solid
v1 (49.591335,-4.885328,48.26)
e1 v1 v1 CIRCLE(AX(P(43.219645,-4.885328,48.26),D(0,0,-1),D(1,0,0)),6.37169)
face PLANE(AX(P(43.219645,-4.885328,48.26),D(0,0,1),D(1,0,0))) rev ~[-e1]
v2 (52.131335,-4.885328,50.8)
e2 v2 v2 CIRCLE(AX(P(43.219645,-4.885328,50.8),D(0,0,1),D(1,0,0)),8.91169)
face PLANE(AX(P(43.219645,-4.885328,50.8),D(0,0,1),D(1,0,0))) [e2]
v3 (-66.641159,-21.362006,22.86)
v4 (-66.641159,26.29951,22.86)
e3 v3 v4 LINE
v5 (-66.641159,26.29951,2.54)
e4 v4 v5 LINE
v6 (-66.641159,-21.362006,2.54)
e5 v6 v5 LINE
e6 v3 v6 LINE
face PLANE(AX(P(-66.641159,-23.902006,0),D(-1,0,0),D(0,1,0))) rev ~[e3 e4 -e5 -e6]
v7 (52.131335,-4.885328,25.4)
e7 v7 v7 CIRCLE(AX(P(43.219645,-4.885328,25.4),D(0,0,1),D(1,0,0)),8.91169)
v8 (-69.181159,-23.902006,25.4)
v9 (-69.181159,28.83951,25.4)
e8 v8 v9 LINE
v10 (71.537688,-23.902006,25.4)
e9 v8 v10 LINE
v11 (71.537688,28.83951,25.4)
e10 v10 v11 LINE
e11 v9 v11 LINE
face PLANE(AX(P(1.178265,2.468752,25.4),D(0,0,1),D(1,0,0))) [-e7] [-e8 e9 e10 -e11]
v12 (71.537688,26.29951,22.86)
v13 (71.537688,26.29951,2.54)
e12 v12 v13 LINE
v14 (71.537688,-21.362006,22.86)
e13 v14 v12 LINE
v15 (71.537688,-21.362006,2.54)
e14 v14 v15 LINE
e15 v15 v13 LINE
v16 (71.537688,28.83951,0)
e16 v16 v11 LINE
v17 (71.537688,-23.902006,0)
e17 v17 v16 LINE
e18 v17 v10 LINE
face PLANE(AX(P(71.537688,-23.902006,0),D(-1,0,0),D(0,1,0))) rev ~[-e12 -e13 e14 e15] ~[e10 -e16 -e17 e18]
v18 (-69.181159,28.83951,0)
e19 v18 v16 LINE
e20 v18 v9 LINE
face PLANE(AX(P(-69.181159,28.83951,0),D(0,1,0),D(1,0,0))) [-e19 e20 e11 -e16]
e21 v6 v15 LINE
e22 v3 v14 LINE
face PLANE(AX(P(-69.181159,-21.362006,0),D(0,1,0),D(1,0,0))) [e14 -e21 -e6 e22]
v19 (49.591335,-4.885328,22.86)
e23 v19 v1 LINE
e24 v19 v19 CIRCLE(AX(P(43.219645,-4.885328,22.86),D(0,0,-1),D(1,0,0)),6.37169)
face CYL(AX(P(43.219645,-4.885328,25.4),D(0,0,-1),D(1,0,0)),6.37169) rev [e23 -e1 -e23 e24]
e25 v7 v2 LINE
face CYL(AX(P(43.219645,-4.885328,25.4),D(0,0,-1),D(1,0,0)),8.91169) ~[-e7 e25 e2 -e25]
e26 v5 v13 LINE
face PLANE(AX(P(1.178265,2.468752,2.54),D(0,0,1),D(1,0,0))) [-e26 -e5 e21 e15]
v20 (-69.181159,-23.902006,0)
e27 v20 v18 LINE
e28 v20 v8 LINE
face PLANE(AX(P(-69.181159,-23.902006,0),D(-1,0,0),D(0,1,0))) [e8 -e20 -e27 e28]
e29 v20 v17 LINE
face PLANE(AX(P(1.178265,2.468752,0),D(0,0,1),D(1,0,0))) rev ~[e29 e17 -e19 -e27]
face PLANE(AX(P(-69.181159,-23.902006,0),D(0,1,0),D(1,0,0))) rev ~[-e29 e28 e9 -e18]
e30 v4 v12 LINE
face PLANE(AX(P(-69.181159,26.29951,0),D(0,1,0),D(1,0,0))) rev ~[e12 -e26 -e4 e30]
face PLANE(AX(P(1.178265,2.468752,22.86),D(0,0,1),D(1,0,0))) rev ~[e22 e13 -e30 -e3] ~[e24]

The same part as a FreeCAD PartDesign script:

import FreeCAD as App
import Part
import Sketcher

V = App.Vector
Q = App.Units.Quantity


def faces_at(feature, points):
    """Names of the faces that lie closest to the given points."""
    faces = feature.Shape.Faces
    near = lambda p: min(range(len(faces)), key=lambda i: faces[i].distToShape(Part.Vertex(*p))[0])
    return sorted({f"Face{near(p) + 1}" for p in points})


def add_polygon(sketch, points):
    """Adds a closed chain of lines whose ends are joined by coincident constraints."""
    first, n = sketch.GeometryCount, len(points)
    for a, b in zip(points, points[1:] + points[:1]):
        sketch.addGeometry(Part.LineSegment(App.Vector(*a, 0), App.Vector(*b, 0)), False)
    for i in range(n):
        sketch.addConstraint(Sketcher.Constraint("Coincident", first + i, 2, first + (i + 1) % n, 1))

doc = App.newDocument("Part")
body = doc.addObject("PartDesign::Body", "Body")

# Sketch on XY plane
sketch1 = body.newObject("Sketcher::SketchObject", "Sketch")
sketch1.AttachmentSupport = (doc.getObject("XY_Plane"), [""])
sketch1.MapMode = "FlatFace"
add_polygon(sketch1, [(-69, 29), (-69, -24), (72, -24), (72, 29)])  # lines 0-3
sketch1.addConstraint([
    Sketcher.Constraint("Vertical", 0),
    Sketcher.Constraint("Horizontal", 1),
    Sketcher.Constraint("Vertical", 2),
    Sketcher.Constraint("Horizontal", 3),
    Sketcher.Constraint("DistanceX", 1, 1, 1, 2, Q("140.718848 mm")),
    Sketcher.Constraint("DistanceY", 0, 2, 0, 1, Q("52.741516 mm")),
    Sketcher.Constraint("DistanceX", 0, 2, -1, 1, Q("69.181159 mm")),
    Sketcher.Constraint("DistanceY", -1, 1, 2, 2, Q("28.83951 mm")),
])
pad1 = body.newObject("PartDesign::Pad", "Pad")
pad1.Profile = sketch1
pad1.Length = Q("1 in")

# Sketch on XY plane
sketch2 = body.newObject("Sketcher::SketchObject", "Sketch001")
sketch2.AttachmentSupport = (doc.getObject("XY_Plane"), [""])
sketch2.MapMode = "FlatFace"
sketch2.AttachmentOffset = App.Placement(V(0, 0, 1 * 25.4), App.Rotation())
sketch2.addGeometry(Part.Circle(V(43, -5, 0), V(0, 0, 1), 9), False)
sketch2.addConstraint([
    Sketcher.Constraint("Diameter", 0, Q("17.82338 mm")),
    Sketcher.Constraint("DistanceX", -1, 1, 0, 3, Q("43.219645 mm")),
    Sketcher.Constraint("DistanceY", 0, 3, -1, 1, Q("4.885328 mm")),
])
pad2 = body.newObject("PartDesign::Pad", "Pad001")
pad2.Profile = sketch2
pad2.Length = Q("1 in")
doc.recompute()

thickness = body.newObject("PartDesign::Thickness", "Thickness")
thickness.Base = (pad2, faces_at(pad2, [(71.538, 2.469, 12.7)]))
thickness.Value = Q("0.1 in")
thickness.Reversed = True
thickness.Join = "Intersection"

doc.recompute()
